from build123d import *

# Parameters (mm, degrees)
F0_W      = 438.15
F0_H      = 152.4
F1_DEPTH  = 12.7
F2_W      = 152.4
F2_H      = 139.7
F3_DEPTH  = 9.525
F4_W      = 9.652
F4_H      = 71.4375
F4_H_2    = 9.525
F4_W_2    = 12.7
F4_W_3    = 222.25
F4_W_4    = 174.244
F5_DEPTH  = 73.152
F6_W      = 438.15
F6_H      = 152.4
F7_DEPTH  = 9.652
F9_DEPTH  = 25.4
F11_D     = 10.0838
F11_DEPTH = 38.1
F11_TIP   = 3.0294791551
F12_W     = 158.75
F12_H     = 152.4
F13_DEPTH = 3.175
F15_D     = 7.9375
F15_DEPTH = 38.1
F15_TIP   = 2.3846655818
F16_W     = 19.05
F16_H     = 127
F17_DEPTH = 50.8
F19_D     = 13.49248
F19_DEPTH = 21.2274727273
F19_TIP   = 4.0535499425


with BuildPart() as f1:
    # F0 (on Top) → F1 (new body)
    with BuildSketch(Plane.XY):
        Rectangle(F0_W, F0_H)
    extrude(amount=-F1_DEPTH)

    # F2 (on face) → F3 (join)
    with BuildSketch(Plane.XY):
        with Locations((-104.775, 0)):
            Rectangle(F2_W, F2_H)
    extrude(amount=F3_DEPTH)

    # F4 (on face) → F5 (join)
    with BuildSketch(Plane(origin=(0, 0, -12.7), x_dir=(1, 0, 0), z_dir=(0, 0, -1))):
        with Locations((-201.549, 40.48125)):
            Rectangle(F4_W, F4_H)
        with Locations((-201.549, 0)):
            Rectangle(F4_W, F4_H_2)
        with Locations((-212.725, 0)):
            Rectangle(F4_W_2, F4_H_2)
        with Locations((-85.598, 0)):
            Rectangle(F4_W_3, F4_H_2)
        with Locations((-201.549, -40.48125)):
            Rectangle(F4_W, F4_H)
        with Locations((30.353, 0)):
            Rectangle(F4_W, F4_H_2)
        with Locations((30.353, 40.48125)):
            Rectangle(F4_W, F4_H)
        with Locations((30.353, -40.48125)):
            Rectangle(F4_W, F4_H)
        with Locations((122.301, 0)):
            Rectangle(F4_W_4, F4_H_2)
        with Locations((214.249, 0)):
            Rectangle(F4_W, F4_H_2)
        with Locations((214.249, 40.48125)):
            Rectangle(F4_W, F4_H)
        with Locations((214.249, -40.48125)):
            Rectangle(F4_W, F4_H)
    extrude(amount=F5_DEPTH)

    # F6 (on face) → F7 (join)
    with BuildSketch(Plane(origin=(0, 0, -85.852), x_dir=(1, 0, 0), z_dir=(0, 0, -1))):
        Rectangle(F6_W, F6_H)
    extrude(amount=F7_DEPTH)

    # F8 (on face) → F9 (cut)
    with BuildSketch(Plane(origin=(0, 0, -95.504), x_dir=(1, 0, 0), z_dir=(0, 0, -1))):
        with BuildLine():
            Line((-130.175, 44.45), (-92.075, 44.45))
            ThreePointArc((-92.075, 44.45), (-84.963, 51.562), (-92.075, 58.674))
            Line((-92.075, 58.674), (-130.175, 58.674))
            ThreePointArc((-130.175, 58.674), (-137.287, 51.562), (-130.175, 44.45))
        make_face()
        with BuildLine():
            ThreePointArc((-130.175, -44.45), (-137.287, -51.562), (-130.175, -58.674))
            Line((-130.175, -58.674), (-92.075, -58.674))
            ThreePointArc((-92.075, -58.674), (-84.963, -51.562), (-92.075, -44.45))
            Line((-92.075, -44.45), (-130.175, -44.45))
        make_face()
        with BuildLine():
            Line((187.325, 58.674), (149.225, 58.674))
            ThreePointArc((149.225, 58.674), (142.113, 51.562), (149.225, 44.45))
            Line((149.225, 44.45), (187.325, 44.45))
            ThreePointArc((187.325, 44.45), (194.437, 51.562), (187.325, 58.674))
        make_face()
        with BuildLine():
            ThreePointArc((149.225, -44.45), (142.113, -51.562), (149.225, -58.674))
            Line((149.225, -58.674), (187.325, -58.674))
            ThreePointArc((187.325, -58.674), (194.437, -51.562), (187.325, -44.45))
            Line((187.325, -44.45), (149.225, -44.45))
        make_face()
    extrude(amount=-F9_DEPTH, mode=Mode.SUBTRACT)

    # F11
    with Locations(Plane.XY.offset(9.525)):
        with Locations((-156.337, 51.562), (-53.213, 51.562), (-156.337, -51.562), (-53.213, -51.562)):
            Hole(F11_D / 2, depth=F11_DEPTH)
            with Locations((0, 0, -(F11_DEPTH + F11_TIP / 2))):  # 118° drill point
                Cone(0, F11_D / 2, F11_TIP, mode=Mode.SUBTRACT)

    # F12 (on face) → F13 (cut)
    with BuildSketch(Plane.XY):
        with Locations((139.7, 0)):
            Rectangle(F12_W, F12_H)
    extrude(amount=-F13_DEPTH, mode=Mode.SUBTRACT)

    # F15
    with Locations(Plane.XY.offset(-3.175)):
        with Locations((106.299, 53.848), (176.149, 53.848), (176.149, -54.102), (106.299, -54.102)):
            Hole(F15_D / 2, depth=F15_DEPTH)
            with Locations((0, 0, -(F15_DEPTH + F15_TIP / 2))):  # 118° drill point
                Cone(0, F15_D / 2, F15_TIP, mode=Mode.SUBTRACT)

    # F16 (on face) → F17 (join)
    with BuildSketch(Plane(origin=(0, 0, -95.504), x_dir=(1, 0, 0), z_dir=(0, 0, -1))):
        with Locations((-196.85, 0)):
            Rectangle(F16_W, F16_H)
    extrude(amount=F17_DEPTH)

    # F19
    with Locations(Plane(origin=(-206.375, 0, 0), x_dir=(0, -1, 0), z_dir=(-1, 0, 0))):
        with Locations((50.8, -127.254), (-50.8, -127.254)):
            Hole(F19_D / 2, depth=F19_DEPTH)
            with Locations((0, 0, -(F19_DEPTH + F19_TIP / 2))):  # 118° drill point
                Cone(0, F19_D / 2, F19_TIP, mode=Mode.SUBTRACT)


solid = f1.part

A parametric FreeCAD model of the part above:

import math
import FreeCAD as App
import Part
import Sketcher
Q = App.Units.Quantity

doc = App.newDocument("Part")
body = doc.addObject("PartDesign::Body", "Body")

# Sketch on XY plane
sketch1 = body.newObject("Sketcher::SketchObject", "Sketch")
sketch1.AttachmentSupport = (doc.getObject("XY_Plane"), [""])
sketch1.MapMode = "FlatFace"
sketch1.addGeometry([
    Part.LineSegment(App.Vector(-219, 76, 0), App.Vector(-219, -76, 0)),
    Part.LineSegment(App.Vector(-219, -76, 0), App.Vector(219, -76, 0)),
    Part.LineSegment(App.Vector(219, -76, 0), App.Vector(219, 76, 0)),
    Part.LineSegment(App.Vector(219, 76, 0), App.Vector(-219, 76, 0)),
], False)
sketch1.addConstraint([
    Sketcher.Constraint("Coincident", 0, 2, 1, 1),
    Sketcher.Constraint("Coincident", 1, 2, 2, 1),
    Sketcher.Constraint("Coincident", 2, 2, 3, 1),
    Sketcher.Constraint("Coincident", 3, 2, 0, 1),
    Sketcher.Constraint("Vertical", 0),
    Sketcher.Constraint("Horizontal", 1),
    Sketcher.Constraint("Vertical", 2),
    Sketcher.Constraint("Horizontal", 3),
    Sketcher.Constraint("Symmetric", 0, 2, 2, 2, -1, 1),
    Sketcher.Constraint("DistanceY", 0, 2, 0, 1, Q("6 in")),
    Sketcher.Constraint("DistanceX", 1, 1, 1, 2, Q("17.25 in")),
])
pad1 = body.newObject("PartDesign::Pad", "Pad")
pad1.Profile = sketch1
pad1.Length = Q("0.5 in")
pad1.Reversed = True

# Sketch on XY plane
sketch2 = body.newObject("Sketcher::SketchObject", "Sketch001")
sketch2.AttachmentSupport = (doc.getObject("XY_Plane"), [""])
sketch2.MapMode = "FlatFace"
sketch2.addGeometry([
    Part.LineSegment(App.Vector(-181, 70, 0), App.Vector(-181, -70, 0)),
    Part.LineSegment(App.Vector(-181, -70, 0), App.Vector(-29, -70, 0)),
    Part.LineSegment(App.Vector(-29, -70, 0), App.Vector(-29, 70, 0)),
    Part.LineSegment(App.Vector(-29, 70, 0), App.Vector(-181, 70, 0)),
], False)
sketch2.addConstraint([
    Sketcher.Constraint("Coincident", 0, 2, 1, 1),
    Sketcher.Constraint("Coincident", 1, 2, 2, 1),
    Sketcher.Constraint("Coincident", 2, 2, 3, 1),
    Sketcher.Constraint("Coincident", 3, 2, 0, 1),
    Sketcher.Constraint("Vertical", 0),
    Sketcher.Constraint("Horizontal", 1),
    Sketcher.Constraint("Vertical", 2),
    Sketcher.Constraint("Horizontal", 3),
    Sketcher.Constraint("DistanceX", 1, 1, 1, 2, Q("6 in")),
    Sketcher.Constraint("DistanceY", 0, 2, 0, 1, Q("5.5 in")),
    Sketcher.Constraint("DistanceY", 0, 2, -1, 1, Q("2.75 in")),
    Sketcher.Constraint("DistanceX", 0, 2, -1, 1, Q("7.125 in")),
])
pad2 = body.newObject("PartDesign::Pad", "Pad001")
pad2.Profile = sketch2
pad2.Length = Q("0.375 in")

# Sketch on XY plane
sketch3 = body.newObject("Sketcher::SketchObject", "Sketch002")
sketch3.AttachmentSupport = (doc.getObject("XY_Plane"), [""])
sketch3.MapMode = "FlatFace"
sketch3.AttachmentOffset = App.Placement(App.Vector(0, 0, -0.5 * 25.4), App.Rotation())
sketch3.addGeometry([
    Part.LineSegment(App.Vector(-206, -76, 0), App.Vector(-206, -5, 0)),  # 0
    Part.LineSegment(App.Vector(-206, -5, 0), App.Vector(-219, -5, 0)),  # 1
    Part.LineSegment(App.Vector(-219, -5, 0), App.Vector(-219, 5, 0)),  # 2
    Part.LineSegment(App.Vector(-219, 5, 0), App.Vector(-206, 5, 0)),  # 3
    Part.LineSegment(App.Vector(-206, 5, 0), App.Vector(-206, 76, 0)),  # 4
    Part.LineSegment(App.Vector(-206, 76, 0), App.Vector(-197, 76, 0)),  # 5
    Part.LineSegment(App.Vector(-197, 76, 0), App.Vector(-197, 5, 0)),  # 6
    Part.LineSegment(App.Vector(-197, 5, 0), App.Vector(26, 5, 0)),  # 7
    Part.LineSegment(App.Vector(26, 5, 0), App.Vector(26, 76, 0)),  # 8
    Part.LineSegment(App.Vector(26, 76, 0), App.Vector(35, 76, 0)),  # 9
    Part.LineSegment(App.Vector(35, 76, 0), App.Vector(35, 5, 0)),  # 10
    Part.LineSegment(App.Vector(35, 5, 0), App.Vector(209, 5, 0)),  # 11
    Part.LineSegment(App.Vector(209, 5, 0), App.Vector(209, 76, 0)),  # 12
    Part.LineSegment(App.Vector(209, 76, 0), App.Vector(219, 76, 0)),  # 13
    Part.LineSegment(App.Vector(219, 76, 0), App.Vector(219, -76, 0)),  # 14
    Part.LineSegment(App.Vector(219, -76, 0), App.Vector(209, -76, 0)),  # 15
    Part.LineSegment(App.Vector(209, -76, 0), App.Vector(209, -5, 0)),  # 16
    Part.LineSegment(App.Vector(209, -5, 0), App.Vector(35, -5, 0)),  # 17
    Part.LineSegment(App.Vector(35, -5, 0), App.Vector(35, -76, 0)),  # 18
    Part.LineSegment(App.Vector(35, -76, 0), App.Vector(26, -76, 0)),  # 19
    Part.LineSegment(App.Vector(26, -76, 0), App.Vector(26, -5, 0)),  # 20
    Part.LineSegment(App.Vector(26, -5, 0), App.Vector(-197, -5, 0)),  # 21
    Part.LineSegment(App.Vector(-197, -5, 0), App.Vector(-197, -76, 0)),  # 22
    Part.LineSegment(App.Vector(-197, -76, 0), App.Vector(-206, -76, 0)),  # 23
], False)
sketch3.addConstraint([
    Sketcher.Constraint("Coincident", 0, 2, 1, 1),
    Sketcher.Constraint("Coincident", 1, 2, 2, 1),
    Sketcher.Constraint("Coincident", 2, 2, 3, 1),
    Sketcher.Constraint("Coincident", 3, 2, 4, 1),
    Sketcher.Constraint("Coincident", 4, 2, 5, 1),
    Sketcher.Constraint("Coincident", 5, 2, 6, 1),
    Sketcher.Constraint("Coincident", 6, 2, 7, 1),
    Sketcher.Constraint("Coincident", 7, 2, 8, 1),
    Sketcher.Constraint("Coincident", 8, 2, 9, 1),
    Sketcher.Constraint("Coincident", 9, 2, 10, 1),
    Sketcher.Constraint("Coincident", 10, 2, 11, 1),
    Sketcher.Constraint("Coincident", 11, 2, 12, 1),
    Sketcher.Constraint("Coincident", 12, 2, 13, 1),
    Sketcher.Constraint("Coincident", 13, 2, 14, 1),
    Sketcher.Constraint("Coincident", 14, 2, 15, 1),
    Sketcher.Constraint("Coincident", 15, 2, 16, 1),
    Sketcher.Constraint("Coincident", 16, 2, 17, 1),
    Sketcher.Constraint("Coincident", 17, 2, 18, 1),
    Sketcher.Constraint("Coincident", 18, 2, 19, 1),
    Sketcher.Constraint("Coincident", 19, 2, 20, 1),
    Sketcher.Constraint("Coincident", 20, 2, 21, 1),
    Sketcher.Constraint("Coincident", 21, 2, 22, 1),
    Sketcher.Constraint("Coincident", 22, 2, 23, 1),
    Sketcher.Constraint("Coincident", 23, 2, 0, 1),
    Sketcher.Constraint("Vertical", 0),
    Sketcher.Constraint("Horizontal", 1),
    Sketcher.Constraint("Vertical", 2),
    Sketcher.Constraint("Horizontal", 3),
    Sketcher.Constraint("Vertical", 4),
    Sketcher.Constraint("Horizontal", 5),
    Sketcher.Constraint("Vertical", 6),
    Sketcher.Constraint("Horizontal", 7),
    Sketcher.Constraint("Vertical", 8),
    Sketcher.Constraint("Horizontal", 9),
    Sketcher.Constraint("Vertical", 10),
    Sketcher.Constraint("Horizontal", 11),
    Sketcher.Constraint("Vertical", 12),
    Sketcher.Constraint("Horizontal", 13),
    Sketcher.Constraint("Vertical", 14),
    Sketcher.Constraint("Horizontal", 15),
    Sketcher.Constraint("Vertical", 16),
    Sketcher.Constraint("Horizontal", 17),
    Sketcher.Constraint("Vertical", 18),
    Sketcher.Constraint("Horizontal", 19),
    Sketcher.Constraint("Vertical", 20),
    Sketcher.Constraint("Horizontal", 21),
    Sketcher.Constraint("Vertical", 22),
    Sketcher.Constraint("Horizontal", 23),
    Sketcher.Constraint("Symmetric", 0, 2, 3, 2, -1),
    Sketcher.Constraint("Symmetric", 12, 2, 15, 2, -1),
    Sketcher.Constraint("Symmetric", 10, 2, 17, 2, -1),
    Sketcher.Constraint("Symmetric", 8, 2, 19, 2, -1),
    Sketcher.Constraint("Symmetric", 6, 2, 21, 2, -1),
    Sketcher.Constraint("Horizontal", 3, 2, 6, 2),
    Sketcher.Constraint("Horizontal", 5, 2, 8, 2),
    Sketcher.Constraint("Horizontal", 7, 2, 10, 2),
    Sketcher.Constraint("Horizontal", 9, 2, 12, 2),
    Sketcher.Constraint("Horizontal", 19, 2, 22, 2),
    Sketcher.Constraint("Equal", 5, 9),
    Sketcher.Constraint("Equal", 9, 13),
    Sketcher.Constraint("DistanceY", 14, 2, 14, 1, Q("6 in")),
    Sketcher.Constraint("DistanceX", 1, 2, 1, 1, Q("0.5 in")),
    Sketcher.Constraint("DistanceX", 5, 1, 5, 2, Q("0.38 in")),
    Sketcher.Constraint("DistanceX", 7, 1, 7, 2, Q("8.75 in")),
    Sketcher.Constraint("DistanceX", 11, 1, 11, 2, Q("6.86 in")),
    Sketcher.Constraint("DistanceY", 0, 1, 0, 2, Q("2.8125 in")),
    Sketcher.Constraint("DistanceX", 0, 2, -1, 1, Q("8.125 in")),
])
pad3 = body.newObject("PartDesign::Pad", "Pad002")
pad3.Profile = sketch3
pad3.Length = Q("2.88 in")
pad3.Reversed = True

# Sketch on XY plane
sketch4 = body.newObject("Sketcher::SketchObject", "Sketch003")
sketch4.AttachmentSupport = (doc.getObject("XY_Plane"), [""])
sketch4.MapMode = "FlatFace"
sketch4.AttachmentOffset = App.Placement(App.Vector(0, 0, -3.38 * 25.4), App.Rotation())
sketch4.addGeometry([
    Part.LineSegment(App.Vector(-219, -76, 0), App.Vector(-219, 76, 0)),
    Part.LineSegment(App.Vector(-219, 76, 0), App.Vector(219, 76, 0)),
    Part.LineSegment(App.Vector(219, 76, 0), App.Vector(219, -76, 0)),
    Part.LineSegment(App.Vector(219, -76, 0), App.Vector(-219, -76, 0)),
], False)
sketch4.addConstraint([
    Sketcher.Constraint("Coincident", 0, 2, 1, 1),
    Sketcher.Constraint("Coincident", 1, 2, 2, 1),
    Sketcher.Constraint("Coincident", 2, 2, 3, 1),
    Sketcher.Constraint("Coincident", 3, 2, 0, 1),
    Sketcher.Constraint("Vertical", 0),
    Sketcher.Constraint("Horizontal", 1),
    Sketcher.Constraint("Vertical", 2),
    Sketcher.Constraint("Horizontal", 3),
    Sketcher.Constraint("Symmetric", 0, 2, 2, 2, -1, 1),
    Sketcher.Constraint("DistanceY", 0, 1, 0, 2, Q("6 in")),
    Sketcher.Constraint("DistanceX", 1, 1, 1, 2, Q("17.25 in")),
])
pad4 = body.newObject("PartDesign::Pad", "Pad003")
pad4.Profile = sketch4
pad4.Length = Q("0.38 in")
pad4.Reversed = True

# Sketch on XY plane
sketch5 = body.newObject("Sketcher::SketchObject", "Sketch004")
sketch5.AttachmentSupport = (doc.getObject("XY_Plane"), [""])
sketch5.MapMode = "FlatFace"
sketch5.AttachmentOffset = App.Placement(App.Vector(0, 0, -3.76 * 25.4), App.Rotation())
sketch5.addGeometry([
    Part.LineSegment(App.Vector(-130, -44, 0), App.Vector(-92, -44, 0)),  # 0
    Part.ArcOfCircle(Part.Circle(App.Vector(-92, -52, 0), App.Vector(0, 0, 1), 7), math.radians(-90), math.radians(90)),  # 1
    Part.LineSegment(App.Vector(-92, -59, 0), App.Vector(-130, -59, 0)),  # 2
    Part.ArcOfCircle(Part.Circle(App.Vector(-130, -52, 0), App.Vector(0, 0, 1), 7), math.radians(90), math.radians(270)),  # 3
    Part.ArcOfCircle(Part.Circle(App.Vector(-130, 52, 0), App.Vector(0, 0, 1), 7), math.radians(90), math.radians(270)),  # 4
    Part.LineSegment(App.Vector(-130, 59, 0), App.Vector(-92, 59, 0)),  # 5
    Part.ArcOfCircle(Part.Circle(App.Vector(-92, 52, 0), App.Vector(0, 0, 1), 7), math.radians(-90), math.radians(90)),  # 6
    Part.LineSegment(App.Vector(-92, 44, 0), App.Vector(-130, 44, 0)),  # 7
    Part.LineSegment(App.Vector(187, -59, 0), App.Vector(149, -59, 0)),  # 8
    Part.ArcOfCircle(Part.Circle(App.Vector(149, -52, 0), App.Vector(0, 0, 1), 7), math.radians(90), math.radians(270)),  # 9
    Part.LineSegment(App.Vector(149, -44, 0), App.Vector(187, -44, 0)),  # 10
    Part.ArcOfCircle(Part.Circle(App.Vector(187, -52, 0), App.Vector(0, 0, 1), 7), math.radians(-90), math.radians(90)),  # 11
    Part.ArcOfCircle(Part.Circle(App.Vector(149, 52, 0), App.Vector(0, 0, 1), 7), math.radians(90), math.radians(270)),  # 12
    Part.LineSegment(App.Vector(149, 59, 0), App.Vector(187, 59, 0)),  # 13
    Part.ArcOfCircle(Part.Circle(App.Vector(187, 52, 0), App.Vector(0, 0, 1), 7), math.radians(-90), math.radians(90)),  # 14
    Part.LineSegment(App.Vector(187, 44, 0), App.Vector(149, 44, 0)),  # 15
], False)
sketch5.addConstraint([
    Sketcher.Constraint("Tangent", 0, 2, 1, 2),
    Sketcher.Constraint("Tangent", 1, 1, 2, 1),
    Sketcher.Constraint("Tangent", 2, 2, 3, 2),
    Sketcher.Constraint("Tangent", 3, 1, 0, 1),
    Sketcher.Constraint("Tangent", 4, 1, 5, 1),
    Sketcher.Constraint("Tangent", 5, 2, 6, 2),
    Sketcher.Constraint("Tangent", 6, 1, 7, 1),
    Sketcher.Constraint("Tangent", 7, 2, 4, 2),
    Sketcher.Constraint("Tangent", 8, 2, 9, 2),
    Sketcher.Constraint("Tangent", 9, 1, 10, 1),
    Sketcher.Constraint("Tangent", 10, 2, 11, 2),
    Sketcher.Constraint("Tangent", 11, 1, 8, 1),
    Sketcher.Constraint("Tangent", 12, 1, 13, 1),
    Sketcher.Constraint("Tangent", 13, 2, 14, 2),
    Sketcher.Constraint("Tangent", 14, 1, 15, 1),
    Sketcher.Constraint("Tangent", 15, 2, 12, 2),
    Sketcher.Constraint("Horizontal", 0),
    Sketcher.Constraint("Horizontal", 2),
    Sketcher.Constraint("Horizontal", 5),
    Sketcher.Constraint("Horizontal", 7),
    Sketcher.Constraint("Horizontal", 8),
    Sketcher.Constraint("Horizontal", 10),
    Sketcher.Constraint("Horizontal", 13),
    Sketcher.Constraint("Horizontal", 15),
    Sketcher.Constraint("Equal", 3, 4),
    Sketcher.Constraint("Equal", 6, 9),
    Sketcher.Constraint("Equal", 11, 12),
    Sketcher.Constraint("Symmetric", 3, 3, 4, 3, -1),
    Sketcher.Constraint("Symmetric", 9, 3, 12, 3, -1),
    Sketcher.Constraint("Horizontal", 3, 3, 9, 3),
    Sketcher.Constraint("Vertical", 1, 3, 6, 3),
    Sketcher.Constraint("Vertical", 11, 3, 14, 3),
    Sketcher.Constraint("Equal", 7, 8),
    Sketcher.Constraint("Radius", 1, Q("0.28 in")),
    Sketcher.Constraint("DistanceX", 0, 1, 0, 2, Q("1.5 in")),
    Sketcher.Constraint("DistanceX", 3, 3, 9, 3, Q("11 in")),
    Sketcher.Constraint("DistanceY", 0, 2, 6, 1, Q("3.5 in")),
    Sketcher.Constraint("DistanceX", 1, 3, -1, 1, Q("3.625 in")),
])
pocket1 = body.newObject("PartDesign::Pocket", "Pocket")
pocket1.Profile = sketch5
pocket1.Length = Q("1 in")
pocket1.Reversed = True

# Sketch on XY plane
sketch6 = body.newObject("Sketcher::SketchObject", "Sketch005")
sketch6.AttachmentSupport = (doc.getObject("XY_Plane"), [""])
sketch6.MapMode = "FlatFace"
sketch6.AttachmentOffset = App.Placement(App.Vector(0, 0, 0.375 * 25.4), App.Rotation())
sketch6.addGeometry([
    Part.Circle(App.Vector(-156, 52, 0), App.Vector(0, 0, 1), 5),
    Part.Circle(App.Vector(-53, 52, 0), App.Vector(0, 0, 1), 5),
    Part.Circle(App.Vector(-156, -52, 0), App.Vector(0, 0, 1), 5),
    Part.Circle(App.Vector(-53, -52, 0), App.Vector(0, 0, 1), 5),
], False)
sketch6.addConstraint([
    Sketcher.Constraint("Equal", 0, 1),
    Sketcher.Constraint("Equal", 1, 2),
    Sketcher.Constraint("Equal", 2, 3),
    Sketcher.Constraint("Symmetric", 0, 3, 2, 3, -1),
    Sketcher.Constraint("Symmetric", 1, 3, 3, 3, -1),
    Sketcher.Constraint("Horizontal", 0, 3, 1, 3),
    Sketcher.Constraint("Diameter", 0, Q("0.397 in")),
    Sketcher.Constraint("DistanceY", -1, 1, 0, 3, Q("2.03 in")),
    Sketcher.Constraint("DistanceX", 0, 3, 1, 3, Q("4.06 in")),
    Sketcher.Constraint("DistanceX", 0, 3, -1, 1, Q("6.155 in")),
])
doc.recompute()
hole = body.newObject("PartDesign::Hole", "Hole")
hole.Profile = sketch6
hole.ThreadType = "None"
hole.Diameter = Q("0.397 in")
hole.DepthType = "Dimension"
hole.Depth = Q("1.5 in")
hole.DrillPoint = "Angled"
hole.DrillPointAngle = 118

# Sketch on XY plane
sketch7 = body.newObject("Sketcher::SketchObject", "Sketch006")
sketch7.AttachmentSupport = (doc.getObject("XY_Plane"), [""])
sketch7.MapMode = "FlatFace"
sketch7.addGeometry([
    Part.LineSegment(App.Vector(60, 76, 0), App.Vector(60, -76, 0)),
    Part.LineSegment(App.Vector(60, -76, 0), App.Vector(219, -76, 0)),
    Part.LineSegment(App.Vector(219, -76, 0), App.Vector(219, 76, 0)),
    Part.LineSegment(App.Vector(219, 76, 0), App.Vector(60, 76, 0)),
], False)
sketch7.addConstraint([
    Sketcher.Constraint("Coincident", 0, 2, 1, 1),
    Sketcher.Constraint("Coincident", 1, 2, 2, 1),
    Sketcher.Constraint("Coincident", 2, 2, 3, 1),
    Sketcher.Constraint("Coincident", 3, 2, 0, 1),
    Sketcher.Constraint("Vertical", 0),
    Sketcher.Constraint("Horizontal", 1),
    Sketcher.Constraint("Vertical", 2),
    Sketcher.Constraint("Horizontal", 3),
    Sketcher.Constraint("DistanceY", 0, 2, 0, 1, Q("6 in")),
    Sketcher.Constraint("DistanceY", 0, 2, -1, 1, Q("3 in")),
    Sketcher.Constraint("DistanceX", 1, 1, 1, 2, Q("6.25 in")),
    Sketcher.Constraint("DistanceX", -1, 1, 0, 2, Q("2.375 in")),
])
pocket2 = body.newObject("PartDesign::Pocket", "Pocket001")
pocket2.Profile = sketch7
pocket2.Length = Q("0.125 in")

# Sketch on XY plane
sketch8 = body.newObject("Sketcher::SketchObject", "Sketch007")
sketch8.AttachmentSupport = (doc.getObject("XY_Plane"), [""])
sketch8.MapMode = "FlatFace"
sketch8.AttachmentOffset = App.Placement(App.Vector(0, 0, -0.125 * 25.4), App.Rotation())
sketch8.addGeometry([
    Part.Circle(App.Vector(106.3, 53.8, 0), App.Vector(0, 0, 1), 4),
    Part.Circle(App.Vector(176.1, 53.8, 0), App.Vector(0, 0, 1), 4),
    Part.Circle(App.Vector(176.1, -54.1, 0), App.Vector(0, 0, 1), 4),
    Part.Circle(App.Vector(106.3, -54.1, 0), App.Vector(0, 0, 1), 4),
], False)
sketch8.addConstraint([
    Sketcher.Constraint("Equal", 0, 1),
    Sketcher.Constraint("Equal", 1, 2),
    Sketcher.Constraint("Equal", 2, 3),
    Sketcher.Constraint("Horizontal", 0, 3, 1, 3),
    Sketcher.Constraint("Horizontal", 2, 3, 3, 3),
    Sketcher.Constraint("Vertical", 1, 3, 2, 3),
    Sketcher.Constraint("Vertical", 0, 3, 3, 3),
    Sketcher.Constraint("Diameter", 0, Q("0.3125 in")),
    Sketcher.Constraint("DistanceY", -1, 1, 0, 3, Q("2.12 in")),
    Sketcher.Constraint("DistanceY", 2, 3, -1, 1, Q("2.13 in")),
    Sketcher.Constraint("DistanceX", 0, 3, 1, 3, Q("2.75 in")),
    Sketcher.Constraint("DistanceX", -1, 1, 0, 3, Q("4.185 in")),
])
doc.recompute()
hole2 = body.newObject("PartDesign::Hole", "Hole001")
hole2.Profile = sketch8
hole2.ThreadType = "None"
hole2.Diameter = Q("0.3125 in")
hole2.DepthType = "Dimension"
hole2.Depth = Q("1.5 in")
hole2.DrillPoint = "Angled"
hole2.DrillPointAngle = 118

# Sketch on XY plane
sketch9 = body.newObject("Sketcher::SketchObject", "Sketch008")
sketch9.AttachmentSupport = (doc.getObject("XY_Plane"), [""])
sketch9.MapMode = "FlatFace"
sketch9.AttachmentOffset = App.Placement(App.Vector(0, 0, -3.76 * 25.4), App.Rotation())
sketch9.addGeometry([
    Part.LineSegment(App.Vector(-206, -64, 0), App.Vector(-206, 64, 0)),
    Part.LineSegment(App.Vector(-206, 64, 0), App.Vector(-187, 64, 0)),
    Part.LineSegment(App.Vector(-187, 64, 0), App.Vector(-187, -64, 0)),
    Part.LineSegment(App.Vector(-187, -64, 0), App.Vector(-206, -64, 0)),
], False)
sketch9.addConstraint([
    Sketcher.Constraint("Coincident", 0, 2, 1, 1),
    Sketcher.Constraint("Coincident", 1, 2, 2, 1),
    Sketcher.Constraint("Coincident", 2, 2, 3, 1),
    Sketcher.Constraint("Coincident", 3, 2, 0, 1),
    Sketcher.Constraint("Vertical", 0),
    Sketcher.Constraint("Horizontal", 1),
    Sketcher.Constraint("Vertical", 2),
    Sketcher.Constraint("Horizontal", 3),
    Sketcher.Constraint("DistanceY", 0, 1, 0, 2, Q("5 in")),
    Sketcher.Constraint("DistanceX", 1, 1, 1, 2, Q("0.75 in")),
    Sketcher.Constraint("DistanceY", -1, 1, 0, 2, Q("2.5 in")),
    Sketcher.Constraint("DistanceX", 0, 2, -1, 1, Q("8.125 in")),
])
pad5 = body.newObject("PartDesign::Pad", "Pad004")
pad5.Profile = sketch9
pad5.Length = Q("2 in")
pad5.Reversed = True

# Sketch on YZ plane
sketch10 = body.newObject("Sketcher::SketchObject", "Sketch009")
sketch10.AttachmentSupport = (doc.getObject("YZ_Plane"), [""])
sketch10.MapMode = "FlatFace"
sketch10.AttachmentOffset = App.Placement(App.Vector(0, 0, -8.125 * 25.4), App.Rotation())
sketch10.addGeometry([
    Part.Circle(App.Vector(-51, -127, 0), App.Vector(0, 0, 1), 7),
    Part.Circle(App.Vector(51, -127, 0), App.Vector(0, 0, 1), 7),
], False)
sketch10.addConstraint([
    Sketcher.Constraint("Equal", 0, 1),
    Sketcher.Constraint("Symmetric", 0, 3, 1, 3, -2),
    Sketcher.Constraint("DistanceX", 0, 3, -1, 1, Q("2 in")),
    Sketcher.Constraint("Diameter", 0, Q("0.5312 in")),
    Sketcher.Constraint("DistanceY", 0, 3, -1, 1, Q("5.01 in")),
])
doc.recompute()
hole3 = body.newObject("PartDesign::Hole", "Hole002")
hole3.Profile = sketch10
hole3.ThreadType = "None"
hole3.Diameter = Q("0.5312 in")
hole3.DepthType = "Dimension"
hole3.Depth = 21.227473
hole3.DrillPoint = "Angled"
hole3.DrillPointAngle = 118
hole3.Reversed = True

doc.recompute()
